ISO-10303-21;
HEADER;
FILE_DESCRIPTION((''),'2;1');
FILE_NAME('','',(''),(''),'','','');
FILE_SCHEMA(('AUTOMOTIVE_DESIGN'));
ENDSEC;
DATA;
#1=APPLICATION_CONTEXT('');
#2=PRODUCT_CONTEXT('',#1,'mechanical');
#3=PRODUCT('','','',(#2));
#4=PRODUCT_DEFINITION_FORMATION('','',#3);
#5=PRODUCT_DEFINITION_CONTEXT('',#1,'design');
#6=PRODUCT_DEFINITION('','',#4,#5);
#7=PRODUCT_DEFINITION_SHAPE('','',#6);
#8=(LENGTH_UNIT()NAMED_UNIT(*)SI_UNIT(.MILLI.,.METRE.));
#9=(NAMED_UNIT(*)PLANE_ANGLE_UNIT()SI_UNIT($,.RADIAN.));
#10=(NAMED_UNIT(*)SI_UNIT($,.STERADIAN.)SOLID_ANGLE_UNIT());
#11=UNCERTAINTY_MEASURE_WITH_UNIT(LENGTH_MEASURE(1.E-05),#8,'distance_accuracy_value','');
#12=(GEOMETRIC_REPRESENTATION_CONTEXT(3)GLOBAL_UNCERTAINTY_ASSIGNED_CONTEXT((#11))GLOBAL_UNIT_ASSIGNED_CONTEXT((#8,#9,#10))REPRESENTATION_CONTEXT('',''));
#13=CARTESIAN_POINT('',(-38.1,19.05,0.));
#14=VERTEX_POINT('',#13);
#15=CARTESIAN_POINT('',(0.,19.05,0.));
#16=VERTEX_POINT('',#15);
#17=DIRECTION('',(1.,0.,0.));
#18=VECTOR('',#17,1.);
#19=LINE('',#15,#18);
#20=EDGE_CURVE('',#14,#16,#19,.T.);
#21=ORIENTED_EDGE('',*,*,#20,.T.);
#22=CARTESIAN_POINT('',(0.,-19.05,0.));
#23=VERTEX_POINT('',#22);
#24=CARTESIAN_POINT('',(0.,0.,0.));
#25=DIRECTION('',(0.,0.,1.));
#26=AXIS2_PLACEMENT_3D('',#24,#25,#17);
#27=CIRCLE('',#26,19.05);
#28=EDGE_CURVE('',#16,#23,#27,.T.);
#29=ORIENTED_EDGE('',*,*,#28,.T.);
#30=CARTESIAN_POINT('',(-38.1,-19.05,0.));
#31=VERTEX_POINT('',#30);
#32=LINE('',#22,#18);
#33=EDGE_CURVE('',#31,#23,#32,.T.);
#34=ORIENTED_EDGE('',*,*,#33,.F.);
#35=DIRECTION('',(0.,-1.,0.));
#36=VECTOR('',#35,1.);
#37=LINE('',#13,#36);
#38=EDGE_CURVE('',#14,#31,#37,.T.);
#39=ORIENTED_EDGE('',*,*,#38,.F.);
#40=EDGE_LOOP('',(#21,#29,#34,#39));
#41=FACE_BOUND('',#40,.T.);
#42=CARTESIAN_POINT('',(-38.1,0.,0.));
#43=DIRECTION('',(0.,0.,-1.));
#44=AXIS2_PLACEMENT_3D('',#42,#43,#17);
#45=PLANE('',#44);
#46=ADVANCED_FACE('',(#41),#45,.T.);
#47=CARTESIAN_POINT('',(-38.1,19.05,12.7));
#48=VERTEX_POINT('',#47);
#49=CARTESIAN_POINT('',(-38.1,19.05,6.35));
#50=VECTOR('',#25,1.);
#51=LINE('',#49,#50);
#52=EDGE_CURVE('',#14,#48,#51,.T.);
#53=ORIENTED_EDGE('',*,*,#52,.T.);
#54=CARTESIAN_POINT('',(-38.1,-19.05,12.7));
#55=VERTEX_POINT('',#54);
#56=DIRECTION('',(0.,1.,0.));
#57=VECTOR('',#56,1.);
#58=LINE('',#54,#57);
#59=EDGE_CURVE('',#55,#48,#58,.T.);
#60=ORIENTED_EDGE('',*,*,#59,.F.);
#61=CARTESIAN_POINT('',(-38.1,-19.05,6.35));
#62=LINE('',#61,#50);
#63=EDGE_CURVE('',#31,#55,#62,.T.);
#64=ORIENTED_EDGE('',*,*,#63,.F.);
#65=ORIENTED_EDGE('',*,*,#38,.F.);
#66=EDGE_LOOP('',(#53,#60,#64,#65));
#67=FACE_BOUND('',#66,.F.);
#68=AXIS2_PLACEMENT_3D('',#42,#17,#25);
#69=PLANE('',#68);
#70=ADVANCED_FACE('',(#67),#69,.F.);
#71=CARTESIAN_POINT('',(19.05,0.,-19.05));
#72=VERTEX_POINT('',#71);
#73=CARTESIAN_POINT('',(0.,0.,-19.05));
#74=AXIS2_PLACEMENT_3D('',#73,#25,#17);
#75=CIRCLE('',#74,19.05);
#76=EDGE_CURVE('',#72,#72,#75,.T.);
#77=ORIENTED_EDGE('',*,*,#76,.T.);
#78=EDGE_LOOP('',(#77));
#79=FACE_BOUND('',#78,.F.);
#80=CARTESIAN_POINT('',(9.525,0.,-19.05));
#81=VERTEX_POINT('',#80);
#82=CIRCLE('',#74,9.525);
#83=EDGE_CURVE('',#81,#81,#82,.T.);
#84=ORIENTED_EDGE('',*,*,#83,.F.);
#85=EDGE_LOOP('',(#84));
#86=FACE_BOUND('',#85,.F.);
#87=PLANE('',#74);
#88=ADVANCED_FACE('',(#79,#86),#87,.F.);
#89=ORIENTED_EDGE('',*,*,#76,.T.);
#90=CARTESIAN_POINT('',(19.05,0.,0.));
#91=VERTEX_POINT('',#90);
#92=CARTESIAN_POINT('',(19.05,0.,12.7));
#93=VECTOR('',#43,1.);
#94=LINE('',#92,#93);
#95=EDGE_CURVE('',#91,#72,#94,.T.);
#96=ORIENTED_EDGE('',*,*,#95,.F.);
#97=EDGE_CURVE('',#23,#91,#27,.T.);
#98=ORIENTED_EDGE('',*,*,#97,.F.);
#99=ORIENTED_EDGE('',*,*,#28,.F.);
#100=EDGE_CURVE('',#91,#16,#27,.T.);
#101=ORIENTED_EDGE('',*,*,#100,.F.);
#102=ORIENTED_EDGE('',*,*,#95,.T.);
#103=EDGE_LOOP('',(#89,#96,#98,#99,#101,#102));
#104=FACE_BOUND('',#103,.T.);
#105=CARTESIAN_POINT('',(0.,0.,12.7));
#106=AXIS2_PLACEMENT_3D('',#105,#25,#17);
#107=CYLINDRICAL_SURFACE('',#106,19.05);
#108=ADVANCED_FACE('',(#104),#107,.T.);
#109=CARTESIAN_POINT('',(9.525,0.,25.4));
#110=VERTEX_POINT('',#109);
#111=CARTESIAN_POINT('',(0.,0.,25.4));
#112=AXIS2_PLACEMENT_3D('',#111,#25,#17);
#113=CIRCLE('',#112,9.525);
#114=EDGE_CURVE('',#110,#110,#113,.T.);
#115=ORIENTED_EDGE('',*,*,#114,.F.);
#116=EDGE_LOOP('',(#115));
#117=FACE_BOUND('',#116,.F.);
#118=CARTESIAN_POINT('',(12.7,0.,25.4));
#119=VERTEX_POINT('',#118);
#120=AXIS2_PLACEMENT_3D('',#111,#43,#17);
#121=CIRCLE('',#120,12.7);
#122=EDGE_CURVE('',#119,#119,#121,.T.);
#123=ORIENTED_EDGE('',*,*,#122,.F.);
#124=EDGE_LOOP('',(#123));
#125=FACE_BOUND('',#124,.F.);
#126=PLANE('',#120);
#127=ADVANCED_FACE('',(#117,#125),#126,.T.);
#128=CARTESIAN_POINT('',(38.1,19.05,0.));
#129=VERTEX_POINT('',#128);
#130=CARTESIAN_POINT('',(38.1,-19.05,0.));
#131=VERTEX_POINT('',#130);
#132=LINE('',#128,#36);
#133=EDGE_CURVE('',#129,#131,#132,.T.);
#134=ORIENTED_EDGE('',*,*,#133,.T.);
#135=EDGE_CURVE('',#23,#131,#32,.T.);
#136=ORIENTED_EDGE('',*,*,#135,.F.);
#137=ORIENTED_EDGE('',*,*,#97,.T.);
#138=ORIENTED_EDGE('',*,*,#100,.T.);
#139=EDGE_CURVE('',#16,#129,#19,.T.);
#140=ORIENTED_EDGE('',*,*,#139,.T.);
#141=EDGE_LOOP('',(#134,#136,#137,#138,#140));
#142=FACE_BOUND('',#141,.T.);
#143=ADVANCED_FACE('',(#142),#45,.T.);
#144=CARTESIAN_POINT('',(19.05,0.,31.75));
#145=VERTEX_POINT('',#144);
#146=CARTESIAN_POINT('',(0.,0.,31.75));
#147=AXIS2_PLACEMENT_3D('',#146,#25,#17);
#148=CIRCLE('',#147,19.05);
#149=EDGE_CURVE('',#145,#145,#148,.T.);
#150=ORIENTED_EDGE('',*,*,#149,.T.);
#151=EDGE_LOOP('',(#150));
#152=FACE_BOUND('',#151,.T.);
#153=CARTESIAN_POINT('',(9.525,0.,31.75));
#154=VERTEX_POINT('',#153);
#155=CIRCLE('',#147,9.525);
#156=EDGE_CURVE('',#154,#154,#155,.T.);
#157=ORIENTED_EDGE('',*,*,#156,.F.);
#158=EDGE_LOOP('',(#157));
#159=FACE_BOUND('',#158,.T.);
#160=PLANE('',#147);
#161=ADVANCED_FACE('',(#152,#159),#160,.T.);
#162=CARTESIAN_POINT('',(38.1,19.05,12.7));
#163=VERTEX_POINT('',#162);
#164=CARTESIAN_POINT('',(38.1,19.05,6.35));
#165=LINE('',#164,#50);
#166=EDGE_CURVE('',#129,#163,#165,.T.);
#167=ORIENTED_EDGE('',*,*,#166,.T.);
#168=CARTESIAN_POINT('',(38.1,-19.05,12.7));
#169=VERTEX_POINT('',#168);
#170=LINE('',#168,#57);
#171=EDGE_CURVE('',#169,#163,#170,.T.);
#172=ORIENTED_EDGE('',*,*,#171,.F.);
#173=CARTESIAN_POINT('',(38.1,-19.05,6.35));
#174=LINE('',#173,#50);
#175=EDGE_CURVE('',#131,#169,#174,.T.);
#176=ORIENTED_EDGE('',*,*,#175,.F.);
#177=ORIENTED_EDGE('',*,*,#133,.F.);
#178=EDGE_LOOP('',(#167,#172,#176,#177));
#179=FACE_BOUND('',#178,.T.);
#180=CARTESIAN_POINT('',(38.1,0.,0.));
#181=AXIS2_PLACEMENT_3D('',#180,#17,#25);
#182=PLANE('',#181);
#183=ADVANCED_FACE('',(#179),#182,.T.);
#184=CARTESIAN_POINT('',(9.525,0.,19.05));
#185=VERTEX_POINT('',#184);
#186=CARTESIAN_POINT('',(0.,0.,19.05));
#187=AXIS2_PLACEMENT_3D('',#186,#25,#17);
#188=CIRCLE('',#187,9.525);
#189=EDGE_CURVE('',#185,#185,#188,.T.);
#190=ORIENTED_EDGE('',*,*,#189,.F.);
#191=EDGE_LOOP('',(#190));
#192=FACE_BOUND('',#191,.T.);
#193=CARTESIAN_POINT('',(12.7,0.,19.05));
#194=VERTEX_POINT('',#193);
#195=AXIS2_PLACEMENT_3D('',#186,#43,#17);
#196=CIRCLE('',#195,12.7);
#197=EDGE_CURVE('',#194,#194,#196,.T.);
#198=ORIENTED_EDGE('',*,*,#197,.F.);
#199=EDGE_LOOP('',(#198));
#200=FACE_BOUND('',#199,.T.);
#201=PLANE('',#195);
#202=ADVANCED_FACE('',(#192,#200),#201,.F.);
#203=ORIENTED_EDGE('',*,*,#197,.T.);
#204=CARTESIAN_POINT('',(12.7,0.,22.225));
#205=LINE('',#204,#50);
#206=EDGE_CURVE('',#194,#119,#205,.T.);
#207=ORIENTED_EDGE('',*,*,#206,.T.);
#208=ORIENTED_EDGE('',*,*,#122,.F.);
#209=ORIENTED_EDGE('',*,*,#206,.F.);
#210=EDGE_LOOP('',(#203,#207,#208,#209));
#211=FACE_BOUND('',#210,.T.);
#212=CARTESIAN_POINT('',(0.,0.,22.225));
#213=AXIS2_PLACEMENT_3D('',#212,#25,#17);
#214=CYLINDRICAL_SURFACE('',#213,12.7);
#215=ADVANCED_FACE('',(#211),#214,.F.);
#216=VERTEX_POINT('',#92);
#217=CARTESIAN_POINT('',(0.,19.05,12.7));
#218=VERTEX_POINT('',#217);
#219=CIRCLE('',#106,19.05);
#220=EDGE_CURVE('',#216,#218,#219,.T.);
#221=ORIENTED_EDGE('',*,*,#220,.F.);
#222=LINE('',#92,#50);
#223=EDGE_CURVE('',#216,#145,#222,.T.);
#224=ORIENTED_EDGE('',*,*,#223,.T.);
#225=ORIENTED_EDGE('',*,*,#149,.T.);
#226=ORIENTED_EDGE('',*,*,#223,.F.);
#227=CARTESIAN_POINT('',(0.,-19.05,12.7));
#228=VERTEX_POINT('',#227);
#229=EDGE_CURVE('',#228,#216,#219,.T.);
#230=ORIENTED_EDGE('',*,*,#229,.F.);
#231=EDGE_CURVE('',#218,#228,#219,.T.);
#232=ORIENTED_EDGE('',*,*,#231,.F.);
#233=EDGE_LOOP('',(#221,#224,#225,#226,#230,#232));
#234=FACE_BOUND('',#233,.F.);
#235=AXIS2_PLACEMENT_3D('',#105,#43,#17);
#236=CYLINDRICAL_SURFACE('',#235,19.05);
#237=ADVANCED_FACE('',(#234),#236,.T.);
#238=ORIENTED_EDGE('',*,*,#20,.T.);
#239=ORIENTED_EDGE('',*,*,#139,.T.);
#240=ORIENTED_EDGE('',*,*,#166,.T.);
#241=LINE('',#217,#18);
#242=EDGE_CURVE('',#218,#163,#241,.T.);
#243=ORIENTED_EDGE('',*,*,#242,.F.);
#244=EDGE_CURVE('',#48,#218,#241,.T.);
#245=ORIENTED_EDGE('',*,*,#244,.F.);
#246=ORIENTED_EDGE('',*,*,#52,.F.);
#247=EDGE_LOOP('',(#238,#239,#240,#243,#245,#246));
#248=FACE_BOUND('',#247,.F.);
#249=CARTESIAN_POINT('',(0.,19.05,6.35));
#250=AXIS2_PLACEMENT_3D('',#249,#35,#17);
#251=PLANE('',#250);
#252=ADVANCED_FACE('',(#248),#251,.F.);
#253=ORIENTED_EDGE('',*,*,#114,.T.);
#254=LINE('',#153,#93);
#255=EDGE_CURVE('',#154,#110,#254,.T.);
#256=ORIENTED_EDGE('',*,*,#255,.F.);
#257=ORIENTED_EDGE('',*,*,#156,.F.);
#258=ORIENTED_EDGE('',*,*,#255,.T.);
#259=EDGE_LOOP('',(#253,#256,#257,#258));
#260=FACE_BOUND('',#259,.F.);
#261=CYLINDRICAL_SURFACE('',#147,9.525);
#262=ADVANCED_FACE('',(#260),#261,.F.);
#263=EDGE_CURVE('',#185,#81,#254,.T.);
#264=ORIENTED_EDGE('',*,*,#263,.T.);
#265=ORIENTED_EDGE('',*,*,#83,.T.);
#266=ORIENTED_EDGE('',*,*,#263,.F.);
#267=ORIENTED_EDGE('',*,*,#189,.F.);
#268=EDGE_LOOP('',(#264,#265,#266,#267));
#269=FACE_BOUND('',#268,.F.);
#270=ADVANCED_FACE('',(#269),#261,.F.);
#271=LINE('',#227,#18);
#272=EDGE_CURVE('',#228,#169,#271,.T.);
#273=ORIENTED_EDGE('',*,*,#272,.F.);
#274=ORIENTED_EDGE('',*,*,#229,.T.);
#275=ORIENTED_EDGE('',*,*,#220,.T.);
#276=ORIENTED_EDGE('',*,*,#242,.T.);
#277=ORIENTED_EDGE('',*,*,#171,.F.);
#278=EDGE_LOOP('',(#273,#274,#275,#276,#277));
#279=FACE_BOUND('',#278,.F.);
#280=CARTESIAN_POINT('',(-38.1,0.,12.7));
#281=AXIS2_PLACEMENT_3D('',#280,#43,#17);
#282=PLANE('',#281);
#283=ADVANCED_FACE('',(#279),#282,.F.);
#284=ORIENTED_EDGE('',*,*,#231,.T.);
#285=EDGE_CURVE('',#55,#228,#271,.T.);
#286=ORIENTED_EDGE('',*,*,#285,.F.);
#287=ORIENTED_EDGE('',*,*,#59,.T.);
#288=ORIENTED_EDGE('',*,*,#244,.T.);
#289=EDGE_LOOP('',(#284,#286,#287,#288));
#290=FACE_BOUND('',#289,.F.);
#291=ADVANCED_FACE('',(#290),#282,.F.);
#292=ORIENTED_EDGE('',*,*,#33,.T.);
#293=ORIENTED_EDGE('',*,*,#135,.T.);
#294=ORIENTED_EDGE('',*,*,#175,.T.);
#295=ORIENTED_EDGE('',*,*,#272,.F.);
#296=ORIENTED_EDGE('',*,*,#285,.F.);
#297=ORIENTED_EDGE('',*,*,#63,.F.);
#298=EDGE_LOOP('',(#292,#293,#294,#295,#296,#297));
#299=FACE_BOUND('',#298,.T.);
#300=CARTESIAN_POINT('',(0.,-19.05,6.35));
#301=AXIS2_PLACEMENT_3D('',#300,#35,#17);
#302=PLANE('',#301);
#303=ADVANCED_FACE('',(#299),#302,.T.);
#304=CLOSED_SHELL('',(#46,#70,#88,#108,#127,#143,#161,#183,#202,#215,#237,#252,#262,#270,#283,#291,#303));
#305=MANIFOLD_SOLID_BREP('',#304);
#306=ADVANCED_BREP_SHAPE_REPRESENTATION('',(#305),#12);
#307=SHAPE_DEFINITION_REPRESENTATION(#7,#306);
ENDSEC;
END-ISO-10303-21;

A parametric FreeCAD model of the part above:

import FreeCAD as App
import Part
import Sketcher
from FreeCAD import Vector
Q = App.Units.Quantity

doc = App.newDocument("Part")
params = doc.addObject("Spreadsheet::Sheet", "Params")
for row, (alias, value) in enumerate([
    ("sketch1_width", "3 in"),
    ("sketch1_height", "0.5 in"),
    ("pad1_length", "1.5 in"),
    ("sketch2_diameter", "1.5 in"),
    ("pad2_length", "0.75 in"),
    ("pad2_length2", "1.25 in"),
    ("sketch3_diameter", "0.75 in"),
    ("sketch4_width", "0.5 in"),
    ("sketch4_height", "0.25 in"),
    ("groove_angle", "360 deg"),
], start=1):
    params.set(f"A{row}", alias)
    params.set(f"B{row}", "=" + value)
    params.setAlias(f"B{row}", alias)

body = doc.addObject("PartDesign::Body", "Body")

sketch1 = doc.addObject("Sketcher::SketchObject", "Sketch")
body.addObject(sketch1)
sketch1.AttachmentSupport = (doc.XZ_Plane, [""])
sketch1.MapMode = "FlatFace"
sketch1.addGeometry(Part.LineSegment(Vector(-38.1, 12.7, 0), Vector(-38.1, 0, 0)), False)
sketch1.addGeometry(Part.LineSegment(Vector(-38.1, 0, 0), Vector(38.1, 0, 0)), False)
sketch1.addGeometry(Part.LineSegment(Vector(38.1, 0, 0), Vector(38.1, 12.7, 0)), False)
sketch1.addGeometry(Part.LineSegment(Vector(38.1, 12.7, 0), Vector(-38.1, 12.7, 0)), False)
sketch1.addConstraint(Sketcher.Constraint("Coincident", 0, 2, 1, 1))
sketch1.addConstraint(Sketcher.Constraint("Coincident", 1, 2, 2, 1))
sketch1.addConstraint(Sketcher.Constraint("Coincident", 2, 2, 3, 1))
sketch1.addConstraint(Sketcher.Constraint("Coincident", 3, 2, 0, 1))
sketch1.addConstraint(Sketcher.Constraint("Vertical", 0))
sketch1.addConstraint(Sketcher.Constraint("Horizontal", 1))
sketch1.addConstraint(Sketcher.Constraint("Vertical", 2))
sketch1.addConstraint(Sketcher.Constraint("Horizontal", 3))
sketch1.addConstraint(Sketcher.Constraint("Symmetric", 0, 2, 1, 2, -1, 1))
sketch1.addConstraint(Sketcher.Constraint("DistanceX", 1, 1, 1, 2, Q("3 in")))
sketch1.addConstraint(Sketcher.Constraint("DistanceY", 0, 2, 0, 1, Q("0.5 in")))
sketch1.setExpression("Constraints[9]", "Params.sketch1_width")
sketch1.setExpression("Constraints[10]", "Params.sketch1_height")
pad1 = doc.addObject("PartDesign::Pad", "Pad")
body.addObject(pad1)
pad1.Profile = sketch1
pad1.setExpression("Length", "Params.pad1_length")
pad1.Midplane = True

sketch2 = doc.addObject("Sketcher::SketchObject", "Sketch001")
body.addObject(sketch2)
sketch2.AttachmentSupport = (doc.XY_Plane, [""])
sketch2.MapMode = "FlatFace"
sketch2.AttachmentOffset = App.Placement(Vector(0, 0, 0.5 * 25.4), App.Rotation())
sketch2.addGeometry(Part.Circle(Vector(0, 0, 0), Vector(0, 0, 1), 19.05), False)
sketch2.addConstraint(Sketcher.Constraint("Coincident", 0, 3, -1, 1))
sketch2.addConstraint(Sketcher.Constraint("Diameter", 0, Q("1.5 in")))
sketch2.setExpression("Constraints[1]", "Params.sketch2_diameter")
pad2 = doc.addObject("PartDesign::Pad", "Pad001")
body.addObject(pad2)
pad2.Profile = sketch2
pad2.Type = "TwoLengths"
pad2.setExpression("Length", "Params.pad2_length")
pad2.setExpression("Length2", "Params.pad2_length2")

sketch3 = doc.addObject("Sketcher::SketchObject", "Sketch002")
body.addObject(sketch3)
sketch3.AttachmentSupport = (doc.XY_Plane, [""])
sketch3.MapMode = "FlatFace"
sketch3.AttachmentOffset = App.Placement(Vector(0, 0, 1.25 * 25.4), App.Rotation())
sketch3.addGeometry(Part.Circle(Vector(0, 0, 0), Vector(0, 0, 1), 9.525), False)
sketch3.addConstraint(Sketcher.Constraint("Coincident", 0, 3, -1, 1))
sketch3.addConstraint(Sketcher.Constraint("Diameter", 0, Q("0.75 in")))
sketch3.setExpression("Constraints[1]", "Params.sketch3_diameter")
pocket1 = doc.addObject("PartDesign::Pocket", "Pocket")
body.addObject(pocket1)
pocket1.Profile = sketch3
pocket1.Type = "ThroughAll"

sketch4 = doc.addObject("Sketcher::SketchObject", "Sketch003")
body.addObject(sketch4)
sketch4.AttachmentSupport = (doc.XZ_Plane, [""])
sketch4.MapMode = "FlatFace"
sketch4.addGeometry(Part.LineSegment(Vector(0, 25.4, 0), Vector(0, 19.05, 0)), False)
sketch4.addGeometry(Part.LineSegment(Vector(0, 19.05, 0), Vector(12.7, 19.05, 0)), False)
sketch4.addGeometry(Part.LineSegment(Vector(12.7, 19.05, 0), Vector(12.7, 25.4, 0)), False)
sketch4.addGeometry(Part.LineSegment(Vector(12.7, 25.4, 0), Vector(0, 25.4, 0)), False)
sketch4.addConstraint(Sketcher.Constraint("Coincident", 0, 2, 1, 1))
sketch4.addConstraint(Sketcher.Constraint("Coincident", 1, 2, 2, 1))
sketch4.addConstraint(Sketcher.Constraint("Coincident", 2, 2, 3, 1))
sketch4.addConstraint(Sketcher.Constraint("Coincident", 3, 2, 0, 1))
sketch4.addConstraint(Sketcher.Constraint("Vertical", 0))
sketch4.addConstraint(Sketcher.Constraint("Horizontal", 1))
sketch4.addConstraint(Sketcher.Constraint("Vertical", 2))
sketch4.addConstraint(Sketcher.Constraint("Horizontal", 3))
sketch4.addConstraint(Sketcher.Constraint("PointOnObject", 0, 2, -2))
sketch4.addConstraint(Sketcher.Constraint("DistanceX", 1, 1, 1, 2, Q("0.5 in")))
sketch4.addConstraint(Sketcher.Constraint("DistanceY", -1, 1, 2, 2, Q("1 in")))
sketch4.addConstraint(Sketcher.Constraint("DistanceY", 0, 2, 0, 1, Q("0.25 in")))
sketch4.setExpression("Constraints[9]", "Params.sketch4_width")
sketch4.setExpression("Constraints[11]", "Params.sketch4_height")
groove = doc.addObject("PartDesign::Groove", "Groove")
body.addObject(groove)
groove.Profile = sketch4
groove.ReferenceAxis = (sketch4, ["V_Axis"])
groove.setExpression("Angle", "Params.groove_angle")

doc.recompute()
